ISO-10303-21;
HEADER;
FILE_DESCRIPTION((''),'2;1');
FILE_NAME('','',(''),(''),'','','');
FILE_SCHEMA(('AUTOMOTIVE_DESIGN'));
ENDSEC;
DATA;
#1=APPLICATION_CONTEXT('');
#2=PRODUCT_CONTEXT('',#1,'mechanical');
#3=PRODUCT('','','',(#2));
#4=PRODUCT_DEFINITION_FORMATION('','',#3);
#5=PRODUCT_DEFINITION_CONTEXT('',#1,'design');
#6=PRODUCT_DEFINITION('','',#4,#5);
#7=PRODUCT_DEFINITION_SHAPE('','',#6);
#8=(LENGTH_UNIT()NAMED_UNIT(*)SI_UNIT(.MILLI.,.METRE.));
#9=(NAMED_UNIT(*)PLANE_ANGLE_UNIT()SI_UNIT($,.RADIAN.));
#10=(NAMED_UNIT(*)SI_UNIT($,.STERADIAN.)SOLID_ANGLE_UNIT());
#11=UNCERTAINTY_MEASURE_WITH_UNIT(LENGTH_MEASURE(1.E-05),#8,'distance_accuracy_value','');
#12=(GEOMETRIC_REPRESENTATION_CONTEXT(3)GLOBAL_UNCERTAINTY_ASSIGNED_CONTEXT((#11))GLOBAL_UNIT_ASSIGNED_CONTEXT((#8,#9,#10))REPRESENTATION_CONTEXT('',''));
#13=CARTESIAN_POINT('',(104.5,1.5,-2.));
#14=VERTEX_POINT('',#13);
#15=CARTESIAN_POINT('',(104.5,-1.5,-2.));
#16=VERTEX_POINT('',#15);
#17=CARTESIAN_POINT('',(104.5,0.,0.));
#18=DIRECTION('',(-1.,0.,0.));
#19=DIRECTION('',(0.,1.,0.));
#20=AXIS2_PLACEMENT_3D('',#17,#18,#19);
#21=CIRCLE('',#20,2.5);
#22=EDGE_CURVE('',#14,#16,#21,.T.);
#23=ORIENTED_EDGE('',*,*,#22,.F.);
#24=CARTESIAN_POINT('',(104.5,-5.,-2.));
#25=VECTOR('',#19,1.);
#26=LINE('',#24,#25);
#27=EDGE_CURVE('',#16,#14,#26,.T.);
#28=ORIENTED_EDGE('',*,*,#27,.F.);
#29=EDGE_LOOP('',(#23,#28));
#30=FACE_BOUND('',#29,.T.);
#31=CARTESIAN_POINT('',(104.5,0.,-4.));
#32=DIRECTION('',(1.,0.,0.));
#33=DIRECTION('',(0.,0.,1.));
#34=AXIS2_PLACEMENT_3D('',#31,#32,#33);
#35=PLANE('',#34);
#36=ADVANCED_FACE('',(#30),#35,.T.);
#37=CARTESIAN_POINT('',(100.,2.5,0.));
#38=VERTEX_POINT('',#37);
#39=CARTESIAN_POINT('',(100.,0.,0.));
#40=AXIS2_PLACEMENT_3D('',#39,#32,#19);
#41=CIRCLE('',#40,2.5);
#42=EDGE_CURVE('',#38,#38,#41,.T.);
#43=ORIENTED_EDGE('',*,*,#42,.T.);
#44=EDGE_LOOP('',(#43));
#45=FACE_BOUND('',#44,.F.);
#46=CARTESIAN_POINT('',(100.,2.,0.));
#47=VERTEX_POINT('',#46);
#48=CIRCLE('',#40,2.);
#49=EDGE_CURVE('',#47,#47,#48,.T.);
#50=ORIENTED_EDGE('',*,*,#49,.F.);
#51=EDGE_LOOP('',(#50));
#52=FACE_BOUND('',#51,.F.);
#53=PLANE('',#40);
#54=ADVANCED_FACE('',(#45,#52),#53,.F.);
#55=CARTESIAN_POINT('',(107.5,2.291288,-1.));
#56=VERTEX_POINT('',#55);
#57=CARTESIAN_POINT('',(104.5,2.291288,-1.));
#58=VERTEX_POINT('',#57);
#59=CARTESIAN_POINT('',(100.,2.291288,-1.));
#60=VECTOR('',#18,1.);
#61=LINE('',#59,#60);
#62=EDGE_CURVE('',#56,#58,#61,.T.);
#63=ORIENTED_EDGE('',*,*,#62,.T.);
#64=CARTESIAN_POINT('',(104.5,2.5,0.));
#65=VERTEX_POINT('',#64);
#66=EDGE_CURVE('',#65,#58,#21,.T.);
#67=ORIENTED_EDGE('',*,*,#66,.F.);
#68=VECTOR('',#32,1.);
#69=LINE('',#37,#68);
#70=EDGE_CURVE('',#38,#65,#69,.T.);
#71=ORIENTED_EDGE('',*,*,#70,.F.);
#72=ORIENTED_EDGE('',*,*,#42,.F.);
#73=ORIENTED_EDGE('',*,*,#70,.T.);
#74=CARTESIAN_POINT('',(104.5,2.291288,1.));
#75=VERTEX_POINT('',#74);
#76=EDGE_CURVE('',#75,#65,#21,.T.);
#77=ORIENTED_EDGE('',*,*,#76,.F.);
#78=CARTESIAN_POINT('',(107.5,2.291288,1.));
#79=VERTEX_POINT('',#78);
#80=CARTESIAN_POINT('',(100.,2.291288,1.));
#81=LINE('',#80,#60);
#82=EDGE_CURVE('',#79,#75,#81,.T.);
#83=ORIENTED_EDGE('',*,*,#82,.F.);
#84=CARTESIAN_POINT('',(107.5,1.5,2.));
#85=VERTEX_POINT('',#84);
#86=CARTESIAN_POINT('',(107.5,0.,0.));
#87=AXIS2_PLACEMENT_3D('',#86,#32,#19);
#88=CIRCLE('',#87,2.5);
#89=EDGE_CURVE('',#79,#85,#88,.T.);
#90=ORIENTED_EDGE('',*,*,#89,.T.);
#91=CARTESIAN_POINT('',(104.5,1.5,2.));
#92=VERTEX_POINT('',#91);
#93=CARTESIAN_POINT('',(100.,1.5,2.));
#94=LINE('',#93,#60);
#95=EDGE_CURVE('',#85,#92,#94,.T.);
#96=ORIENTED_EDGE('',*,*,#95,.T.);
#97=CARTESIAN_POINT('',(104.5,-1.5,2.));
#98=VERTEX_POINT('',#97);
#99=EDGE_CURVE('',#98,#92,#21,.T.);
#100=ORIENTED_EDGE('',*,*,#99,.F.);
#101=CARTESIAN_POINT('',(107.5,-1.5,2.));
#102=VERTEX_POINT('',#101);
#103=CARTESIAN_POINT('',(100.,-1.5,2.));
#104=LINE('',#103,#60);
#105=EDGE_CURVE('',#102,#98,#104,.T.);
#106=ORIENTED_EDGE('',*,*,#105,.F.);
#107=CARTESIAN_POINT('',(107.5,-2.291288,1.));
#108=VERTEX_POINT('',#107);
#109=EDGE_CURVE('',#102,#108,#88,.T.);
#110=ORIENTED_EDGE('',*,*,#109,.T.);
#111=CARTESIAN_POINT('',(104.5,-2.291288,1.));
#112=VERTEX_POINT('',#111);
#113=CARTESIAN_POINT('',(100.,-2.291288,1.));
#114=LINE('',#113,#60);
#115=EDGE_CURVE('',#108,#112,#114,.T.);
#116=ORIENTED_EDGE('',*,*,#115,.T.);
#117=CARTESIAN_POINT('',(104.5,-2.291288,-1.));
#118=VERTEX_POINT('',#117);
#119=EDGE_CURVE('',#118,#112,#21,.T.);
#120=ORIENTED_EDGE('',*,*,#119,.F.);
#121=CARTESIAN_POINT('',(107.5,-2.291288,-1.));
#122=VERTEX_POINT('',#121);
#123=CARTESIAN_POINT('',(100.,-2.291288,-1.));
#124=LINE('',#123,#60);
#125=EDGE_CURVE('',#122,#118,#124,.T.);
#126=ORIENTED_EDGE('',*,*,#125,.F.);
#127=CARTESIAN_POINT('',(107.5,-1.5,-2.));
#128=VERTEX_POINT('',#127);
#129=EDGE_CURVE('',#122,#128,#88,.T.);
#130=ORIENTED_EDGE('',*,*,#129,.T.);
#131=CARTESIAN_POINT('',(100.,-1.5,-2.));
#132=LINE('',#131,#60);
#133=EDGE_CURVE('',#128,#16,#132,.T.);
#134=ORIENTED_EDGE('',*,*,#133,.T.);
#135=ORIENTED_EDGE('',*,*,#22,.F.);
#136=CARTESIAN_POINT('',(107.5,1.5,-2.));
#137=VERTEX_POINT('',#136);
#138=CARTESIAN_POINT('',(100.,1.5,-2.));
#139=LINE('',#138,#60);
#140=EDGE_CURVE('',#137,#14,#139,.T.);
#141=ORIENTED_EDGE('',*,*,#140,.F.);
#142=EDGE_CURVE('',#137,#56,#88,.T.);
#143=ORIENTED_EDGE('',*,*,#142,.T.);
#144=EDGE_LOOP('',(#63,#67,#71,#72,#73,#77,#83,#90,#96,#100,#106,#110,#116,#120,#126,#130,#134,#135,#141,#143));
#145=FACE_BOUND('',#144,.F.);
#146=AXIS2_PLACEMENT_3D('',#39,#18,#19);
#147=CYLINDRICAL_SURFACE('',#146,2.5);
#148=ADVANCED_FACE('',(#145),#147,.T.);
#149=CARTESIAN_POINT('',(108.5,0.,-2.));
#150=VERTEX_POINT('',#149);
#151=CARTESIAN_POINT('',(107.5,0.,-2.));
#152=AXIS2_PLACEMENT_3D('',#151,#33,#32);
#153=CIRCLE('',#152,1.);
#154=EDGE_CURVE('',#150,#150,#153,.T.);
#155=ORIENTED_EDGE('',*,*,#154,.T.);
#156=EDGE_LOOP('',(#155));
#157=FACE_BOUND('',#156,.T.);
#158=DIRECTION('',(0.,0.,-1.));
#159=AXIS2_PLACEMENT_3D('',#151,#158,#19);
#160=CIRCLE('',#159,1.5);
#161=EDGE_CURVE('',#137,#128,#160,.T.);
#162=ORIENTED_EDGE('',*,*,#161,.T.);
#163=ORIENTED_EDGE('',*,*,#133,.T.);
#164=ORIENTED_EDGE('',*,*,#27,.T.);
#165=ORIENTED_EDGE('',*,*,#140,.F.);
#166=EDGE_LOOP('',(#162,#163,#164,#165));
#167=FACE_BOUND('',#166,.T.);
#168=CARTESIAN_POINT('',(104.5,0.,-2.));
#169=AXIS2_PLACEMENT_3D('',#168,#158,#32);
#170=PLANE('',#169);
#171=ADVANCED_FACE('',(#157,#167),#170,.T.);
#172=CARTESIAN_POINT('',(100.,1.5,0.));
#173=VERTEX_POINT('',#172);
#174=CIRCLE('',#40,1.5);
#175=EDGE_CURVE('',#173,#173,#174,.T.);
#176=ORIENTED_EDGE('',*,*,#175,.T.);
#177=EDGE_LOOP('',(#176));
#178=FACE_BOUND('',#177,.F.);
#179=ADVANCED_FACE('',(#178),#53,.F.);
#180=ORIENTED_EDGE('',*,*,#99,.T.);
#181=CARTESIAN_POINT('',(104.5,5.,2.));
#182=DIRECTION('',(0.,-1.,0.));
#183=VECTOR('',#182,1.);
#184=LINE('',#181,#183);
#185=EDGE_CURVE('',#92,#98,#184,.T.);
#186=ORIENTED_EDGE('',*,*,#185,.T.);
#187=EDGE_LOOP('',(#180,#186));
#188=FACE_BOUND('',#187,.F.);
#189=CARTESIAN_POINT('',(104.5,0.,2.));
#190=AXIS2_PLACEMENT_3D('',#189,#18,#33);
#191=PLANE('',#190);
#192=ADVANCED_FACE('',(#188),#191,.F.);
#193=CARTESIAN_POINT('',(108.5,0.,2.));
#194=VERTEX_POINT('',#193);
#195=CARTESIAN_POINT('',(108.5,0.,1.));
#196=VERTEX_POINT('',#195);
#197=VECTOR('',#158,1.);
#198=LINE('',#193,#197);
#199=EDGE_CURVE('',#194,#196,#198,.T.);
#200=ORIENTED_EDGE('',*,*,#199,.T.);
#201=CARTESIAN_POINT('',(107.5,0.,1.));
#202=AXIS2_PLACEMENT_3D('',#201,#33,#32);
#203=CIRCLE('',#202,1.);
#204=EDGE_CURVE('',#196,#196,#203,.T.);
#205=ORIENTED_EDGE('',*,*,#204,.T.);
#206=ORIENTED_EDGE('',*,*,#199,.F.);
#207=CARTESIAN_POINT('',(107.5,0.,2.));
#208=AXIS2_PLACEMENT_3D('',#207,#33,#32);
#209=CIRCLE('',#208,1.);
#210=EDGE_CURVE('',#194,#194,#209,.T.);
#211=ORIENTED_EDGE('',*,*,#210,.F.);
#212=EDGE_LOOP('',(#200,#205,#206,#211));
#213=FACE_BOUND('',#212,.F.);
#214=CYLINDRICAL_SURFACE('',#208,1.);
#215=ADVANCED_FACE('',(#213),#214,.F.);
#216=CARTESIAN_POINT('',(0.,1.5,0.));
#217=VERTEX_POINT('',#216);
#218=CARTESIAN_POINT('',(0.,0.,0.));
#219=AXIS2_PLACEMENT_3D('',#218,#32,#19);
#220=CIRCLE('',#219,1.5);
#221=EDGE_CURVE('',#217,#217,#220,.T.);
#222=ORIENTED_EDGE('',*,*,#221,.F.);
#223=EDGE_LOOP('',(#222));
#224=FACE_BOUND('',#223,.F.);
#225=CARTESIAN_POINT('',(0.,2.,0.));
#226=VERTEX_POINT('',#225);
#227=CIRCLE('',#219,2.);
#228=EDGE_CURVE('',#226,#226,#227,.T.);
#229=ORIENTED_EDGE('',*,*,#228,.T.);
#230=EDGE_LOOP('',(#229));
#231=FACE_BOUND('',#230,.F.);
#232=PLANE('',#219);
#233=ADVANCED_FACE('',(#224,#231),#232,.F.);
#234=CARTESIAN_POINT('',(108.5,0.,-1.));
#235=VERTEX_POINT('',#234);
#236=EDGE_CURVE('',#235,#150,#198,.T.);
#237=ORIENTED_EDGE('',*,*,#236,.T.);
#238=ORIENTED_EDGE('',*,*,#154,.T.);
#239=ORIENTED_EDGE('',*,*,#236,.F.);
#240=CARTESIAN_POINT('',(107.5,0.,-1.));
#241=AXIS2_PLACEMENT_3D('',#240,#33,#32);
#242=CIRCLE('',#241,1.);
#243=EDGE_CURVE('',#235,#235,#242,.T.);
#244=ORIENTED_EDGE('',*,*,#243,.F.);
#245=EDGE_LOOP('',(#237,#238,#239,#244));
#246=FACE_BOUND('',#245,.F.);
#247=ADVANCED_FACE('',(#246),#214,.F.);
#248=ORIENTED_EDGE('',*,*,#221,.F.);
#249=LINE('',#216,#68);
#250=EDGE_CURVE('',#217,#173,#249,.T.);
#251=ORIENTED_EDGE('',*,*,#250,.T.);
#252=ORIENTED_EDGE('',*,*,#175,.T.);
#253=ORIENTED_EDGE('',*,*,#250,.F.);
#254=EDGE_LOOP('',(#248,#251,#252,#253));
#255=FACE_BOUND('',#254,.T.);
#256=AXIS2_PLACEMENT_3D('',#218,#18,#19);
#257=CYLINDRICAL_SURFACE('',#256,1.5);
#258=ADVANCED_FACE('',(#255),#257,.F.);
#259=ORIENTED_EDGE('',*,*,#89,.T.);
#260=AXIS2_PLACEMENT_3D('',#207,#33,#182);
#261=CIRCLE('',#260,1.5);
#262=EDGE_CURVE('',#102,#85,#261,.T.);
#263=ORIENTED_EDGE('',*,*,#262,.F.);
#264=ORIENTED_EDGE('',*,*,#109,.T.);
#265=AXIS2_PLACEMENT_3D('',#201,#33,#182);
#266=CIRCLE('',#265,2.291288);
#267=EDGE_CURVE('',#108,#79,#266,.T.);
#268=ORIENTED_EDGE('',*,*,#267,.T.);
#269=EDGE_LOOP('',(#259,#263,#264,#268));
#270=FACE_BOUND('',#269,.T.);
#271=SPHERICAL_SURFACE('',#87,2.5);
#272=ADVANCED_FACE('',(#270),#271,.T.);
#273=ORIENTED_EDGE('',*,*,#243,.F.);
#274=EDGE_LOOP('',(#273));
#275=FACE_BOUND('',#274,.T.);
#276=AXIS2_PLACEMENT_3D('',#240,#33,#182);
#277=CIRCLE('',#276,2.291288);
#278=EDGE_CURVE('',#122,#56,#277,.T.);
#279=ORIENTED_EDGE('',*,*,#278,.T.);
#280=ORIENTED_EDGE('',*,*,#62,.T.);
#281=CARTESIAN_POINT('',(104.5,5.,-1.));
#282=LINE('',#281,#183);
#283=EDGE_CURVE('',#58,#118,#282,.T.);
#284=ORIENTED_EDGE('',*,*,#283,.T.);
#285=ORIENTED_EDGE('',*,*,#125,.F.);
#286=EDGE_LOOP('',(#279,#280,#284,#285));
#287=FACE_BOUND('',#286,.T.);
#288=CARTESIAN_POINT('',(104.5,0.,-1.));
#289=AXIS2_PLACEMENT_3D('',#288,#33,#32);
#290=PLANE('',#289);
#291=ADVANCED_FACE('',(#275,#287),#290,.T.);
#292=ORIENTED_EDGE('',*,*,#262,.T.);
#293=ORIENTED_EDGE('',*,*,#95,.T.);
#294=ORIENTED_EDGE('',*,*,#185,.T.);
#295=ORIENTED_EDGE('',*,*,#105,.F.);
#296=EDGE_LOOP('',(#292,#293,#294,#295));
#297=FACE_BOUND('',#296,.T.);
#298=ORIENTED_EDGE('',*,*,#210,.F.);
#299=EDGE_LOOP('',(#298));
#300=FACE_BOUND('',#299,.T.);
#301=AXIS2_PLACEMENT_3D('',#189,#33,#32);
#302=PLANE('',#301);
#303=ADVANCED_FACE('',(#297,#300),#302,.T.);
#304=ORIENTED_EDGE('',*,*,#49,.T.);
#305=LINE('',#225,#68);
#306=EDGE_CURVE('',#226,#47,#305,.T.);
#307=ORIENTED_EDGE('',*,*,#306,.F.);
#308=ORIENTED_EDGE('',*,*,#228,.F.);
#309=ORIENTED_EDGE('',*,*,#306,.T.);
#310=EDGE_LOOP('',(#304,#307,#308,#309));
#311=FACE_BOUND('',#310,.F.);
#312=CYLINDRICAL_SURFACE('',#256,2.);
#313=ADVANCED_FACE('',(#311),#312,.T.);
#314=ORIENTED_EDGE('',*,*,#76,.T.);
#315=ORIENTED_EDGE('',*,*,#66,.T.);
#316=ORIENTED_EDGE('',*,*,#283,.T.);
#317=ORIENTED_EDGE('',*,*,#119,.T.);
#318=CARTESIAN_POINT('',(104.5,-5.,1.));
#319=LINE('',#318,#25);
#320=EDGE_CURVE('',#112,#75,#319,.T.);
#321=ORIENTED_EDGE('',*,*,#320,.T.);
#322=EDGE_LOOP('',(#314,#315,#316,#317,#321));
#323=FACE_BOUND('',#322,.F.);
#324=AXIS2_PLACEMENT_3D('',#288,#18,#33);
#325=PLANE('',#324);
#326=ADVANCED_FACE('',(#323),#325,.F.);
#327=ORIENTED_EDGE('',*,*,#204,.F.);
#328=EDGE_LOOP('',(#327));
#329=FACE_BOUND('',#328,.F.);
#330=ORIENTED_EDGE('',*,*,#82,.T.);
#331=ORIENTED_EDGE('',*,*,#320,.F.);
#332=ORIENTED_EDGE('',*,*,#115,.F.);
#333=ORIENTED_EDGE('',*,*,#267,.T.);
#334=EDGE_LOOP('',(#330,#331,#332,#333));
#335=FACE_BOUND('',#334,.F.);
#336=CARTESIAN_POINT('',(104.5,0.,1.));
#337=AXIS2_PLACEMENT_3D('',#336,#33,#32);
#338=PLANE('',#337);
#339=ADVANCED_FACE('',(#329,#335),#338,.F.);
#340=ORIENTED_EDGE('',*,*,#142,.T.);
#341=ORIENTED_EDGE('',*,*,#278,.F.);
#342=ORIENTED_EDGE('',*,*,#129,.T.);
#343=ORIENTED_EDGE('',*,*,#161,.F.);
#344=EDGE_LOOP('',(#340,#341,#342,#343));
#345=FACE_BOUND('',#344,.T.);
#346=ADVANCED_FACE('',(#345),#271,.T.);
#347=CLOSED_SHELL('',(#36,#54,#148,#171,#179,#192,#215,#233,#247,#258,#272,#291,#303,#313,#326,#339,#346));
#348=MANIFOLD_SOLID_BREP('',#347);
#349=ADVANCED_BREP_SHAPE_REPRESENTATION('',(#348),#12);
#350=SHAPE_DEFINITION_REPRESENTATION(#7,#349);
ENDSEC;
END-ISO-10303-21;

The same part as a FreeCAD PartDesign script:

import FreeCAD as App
import Part
import Sketcher


def edges_at(feature, points):
    """Names of the edges that pass closest to the given points."""
    edges = feature.Shape.Edges
    near = lambda p: min(range(len(edges)), key=lambda i: edges[i].distToShape(Part.Vertex(*p))[0])
    return sorted({f"Edge{near(p) + 1}" for p in points})

doc = App.newDocument("Part")
body = doc.addObject("PartDesign::Body", "Body")

# Sketch on YZ plane
sketch1 = body.newObject("Sketcher::SketchObject", "Sketch")
sketch1.AttachmentSupport = (doc.getObject("YZ_Plane"), [""])
sketch1.MapMode = "FlatFace"
sketch1.addGeometry([
    Part.Circle(App.Vector(0, 0, 0), App.Vector(0, 0, 1), 2),
    Part.Circle(App.Vector(0, 0, 0), App.Vector(0, 0, 1), 1.5),
], False)
sketch1.addConstraint([
    Sketcher.Constraint("Coincident", 0, 3, -1, 1),
    Sketcher.Constraint("Coincident", 1, 3, -1, 1),
    Sketcher.Constraint("Diameter", 0, 4.0),
    Sketcher.Constraint("Diameter", 1, 3.0),
])
pad1 = body.newObject("PartDesign::Pad", "Pad")
pad1.Profile = sketch1
pad1.Length = 100

# Sketch on YZ plane
sketch2 = body.newObject("Sketcher::SketchObject", "Sketch001")
sketch2.AttachmentSupport = (doc.getObject("YZ_Plane"), [""])
sketch2.MapMode = "FlatFace"
sketch2.AttachmentOffset = App.Placement(App.Vector(0, 0, 100), App.Rotation())
sketch2.addGeometry(Part.Circle(App.Vector(0, 0, 0), App.Vector(0, 0, 1), 2.5), False)
sketch2.addConstraint([
    Sketcher.Constraint("Coincident", 0, 3, -1, 1),
    Sketcher.Constraint("Diameter", 0, 5.0),
])
pad2 = body.newObject("PartDesign::Pad", "Pad001")
pad2.Profile = sketch2
pad2.Length = 10
doc.recompute()

fillet = body.newObject("PartDesign::Fillet", "Fillet")
fillet.Base = (pad2, edges_at(pad2, [(110, -2.5, 0)]))
fillet.Radius = 2.5

# Sketch on XZ plane
sketch3 = body.newObject("Sketcher::SketchObject", "Sketch002")
sketch3.AttachmentSupport = (doc.getObject("XZ_Plane"), [""])
sketch3.MapMode = "FlatFace"
sketch3.addGeometry([
    Part.LineSegment(App.Vector(104.5, 4, 0), App.Vector(104.5, 2, 0)),  # 0
    Part.LineSegment(App.Vector(104.5, 2, 0), App.Vector(114.5, 2, 0)),  # 1
    Part.LineSegment(App.Vector(114.5, 2, 0), App.Vector(114.5, 4, 0)),  # 2
    Part.LineSegment(App.Vector(114.5, 4, 0), App.Vector(104.5, 4, 0)),  # 3
    Part.LineSegment(App.Vector(104.5, 1, 0), App.Vector(104.5, -1, 0)),  # 4
    Part.LineSegment(App.Vector(104.5, -1, 0), App.Vector(114.5, -1, 0)),  # 5
    Part.LineSegment(App.Vector(114.5, -1, 0), App.Vector(114.5, 1, 0)),  # 6
    Part.LineSegment(App.Vector(114.5, 1, 0), App.Vector(104.5, 1, 0)),  # 7
    Part.LineSegment(App.Vector(104.5, -2, 0), App.Vector(104.5, -4, 0)),  # 8
    Part.LineSegment(App.Vector(104.5, -4, 0), App.Vector(114.5, -4, 0)),  # 9
    Part.LineSegment(App.Vector(114.5, -4, 0), App.Vector(114.5, -2, 0)),  # 10
    Part.LineSegment(App.Vector(114.5, -2, 0), App.Vector(104.5, -2, 0)),  # 11
], False)
sketch3.addConstraint([
    Sketcher.Constraint("Coincident", 0, 2, 1, 1),
    Sketcher.Constraint("Coincident", 1, 2, 2, 1),
    Sketcher.Constraint("Coincident", 2, 2, 3, 1),
    Sketcher.Constraint("Coincident", 3, 2, 0, 1),
    Sketcher.Constraint("Coincident", 4, 2, 5, 1),
    Sketcher.Constraint("Coincident", 5, 2, 6, 1),
    Sketcher.Constraint("Coincident", 6, 2, 7, 1),
    Sketcher.Constraint("Coincident", 7, 2, 4, 1),
    Sketcher.Constraint("Coincident", 8, 2, 9, 1),
    Sketcher.Constraint("Coincident", 9, 2, 10, 1),
    Sketcher.Constraint("Coincident", 10, 2, 11, 1),
    Sketcher.Constraint("Coincident", 11, 2, 8, 1),
    Sketcher.Constraint("Vertical", 0),
    Sketcher.Constraint("Horizontal", 1),
    Sketcher.Constraint("Vertical", 2),
    Sketcher.Constraint("Horizontal", 3),
    Sketcher.Constraint("Vertical", 4),
    Sketcher.Constraint("Horizontal", 5),
    Sketcher.Constraint("Vertical", 6),
    Sketcher.Constraint("Horizontal", 7),
    Sketcher.Constraint("Vertical", 8),
    Sketcher.Constraint("Horizontal", 9),
    Sketcher.Constraint("Vertical", 10),
    Sketcher.Constraint("Horizontal", 11),
    Sketcher.Constraint("Symmetric", 3, 2, 8, 2, -1),
    Sketcher.Constraint("Symmetric", 1, 2, 10, 2, -1),
    Sketcher.Constraint("Vertical", 3, 2, 4, 2),
    Sketcher.Constraint("Vertical", 2, 2, 5, 2),
    Sketcher.Constraint("Equal", 2, 4),
    Sketcher.Constraint("DistanceX", 1, 1, 1, 2, 10.0),
    Sketcher.Constraint("DistanceY", 0, 2, 0, 1, 2.0),
    Sketcher.Constraint("DistanceY", -1, 1, 0, 2, 2.0),
    Sketcher.Constraint("DistanceY", 4, 2, -1, 1, 1.0),
    Sketcher.Constraint("DistanceX", -1, 1, 0, 2, 104.5),
])
pocket1 = body.newObject("PartDesign::Pocket", "Pocket")
pocket1.Profile = sketch3
pocket1.Length = 10
pocket1.Midplane = True

# Sketch on XY plane
sketch4 = body.newObject("Sketcher::SketchObject", "Sketch003")
sketch4.AttachmentSupport = (doc.getObject("XY_Plane"), [""])
sketch4.MapMode = "FlatFace"
sketch4.AttachmentOffset = App.Placement(App.Vector(0, 0, 2), App.Rotation())
sketch4.addGeometry(Part.Circle(App.Vector(107.5, 0, 0), App.Vector(0, 0, 1), 1), False)
sketch4.addConstraint([
    Sketcher.Constraint("PointOnObject", 0, 3, -1),
    Sketcher.Constraint("Diameter", 0, 2.0),
    Sketcher.Constraint("DistanceX", -1, 1, 0, 3, 107.5),
])
pocket2 = body.newObject("PartDesign::Pocket", "Pocket001")
pocket2.Profile = sketch4
pocket2.Type = "ThroughAll"

doc.recompute()
